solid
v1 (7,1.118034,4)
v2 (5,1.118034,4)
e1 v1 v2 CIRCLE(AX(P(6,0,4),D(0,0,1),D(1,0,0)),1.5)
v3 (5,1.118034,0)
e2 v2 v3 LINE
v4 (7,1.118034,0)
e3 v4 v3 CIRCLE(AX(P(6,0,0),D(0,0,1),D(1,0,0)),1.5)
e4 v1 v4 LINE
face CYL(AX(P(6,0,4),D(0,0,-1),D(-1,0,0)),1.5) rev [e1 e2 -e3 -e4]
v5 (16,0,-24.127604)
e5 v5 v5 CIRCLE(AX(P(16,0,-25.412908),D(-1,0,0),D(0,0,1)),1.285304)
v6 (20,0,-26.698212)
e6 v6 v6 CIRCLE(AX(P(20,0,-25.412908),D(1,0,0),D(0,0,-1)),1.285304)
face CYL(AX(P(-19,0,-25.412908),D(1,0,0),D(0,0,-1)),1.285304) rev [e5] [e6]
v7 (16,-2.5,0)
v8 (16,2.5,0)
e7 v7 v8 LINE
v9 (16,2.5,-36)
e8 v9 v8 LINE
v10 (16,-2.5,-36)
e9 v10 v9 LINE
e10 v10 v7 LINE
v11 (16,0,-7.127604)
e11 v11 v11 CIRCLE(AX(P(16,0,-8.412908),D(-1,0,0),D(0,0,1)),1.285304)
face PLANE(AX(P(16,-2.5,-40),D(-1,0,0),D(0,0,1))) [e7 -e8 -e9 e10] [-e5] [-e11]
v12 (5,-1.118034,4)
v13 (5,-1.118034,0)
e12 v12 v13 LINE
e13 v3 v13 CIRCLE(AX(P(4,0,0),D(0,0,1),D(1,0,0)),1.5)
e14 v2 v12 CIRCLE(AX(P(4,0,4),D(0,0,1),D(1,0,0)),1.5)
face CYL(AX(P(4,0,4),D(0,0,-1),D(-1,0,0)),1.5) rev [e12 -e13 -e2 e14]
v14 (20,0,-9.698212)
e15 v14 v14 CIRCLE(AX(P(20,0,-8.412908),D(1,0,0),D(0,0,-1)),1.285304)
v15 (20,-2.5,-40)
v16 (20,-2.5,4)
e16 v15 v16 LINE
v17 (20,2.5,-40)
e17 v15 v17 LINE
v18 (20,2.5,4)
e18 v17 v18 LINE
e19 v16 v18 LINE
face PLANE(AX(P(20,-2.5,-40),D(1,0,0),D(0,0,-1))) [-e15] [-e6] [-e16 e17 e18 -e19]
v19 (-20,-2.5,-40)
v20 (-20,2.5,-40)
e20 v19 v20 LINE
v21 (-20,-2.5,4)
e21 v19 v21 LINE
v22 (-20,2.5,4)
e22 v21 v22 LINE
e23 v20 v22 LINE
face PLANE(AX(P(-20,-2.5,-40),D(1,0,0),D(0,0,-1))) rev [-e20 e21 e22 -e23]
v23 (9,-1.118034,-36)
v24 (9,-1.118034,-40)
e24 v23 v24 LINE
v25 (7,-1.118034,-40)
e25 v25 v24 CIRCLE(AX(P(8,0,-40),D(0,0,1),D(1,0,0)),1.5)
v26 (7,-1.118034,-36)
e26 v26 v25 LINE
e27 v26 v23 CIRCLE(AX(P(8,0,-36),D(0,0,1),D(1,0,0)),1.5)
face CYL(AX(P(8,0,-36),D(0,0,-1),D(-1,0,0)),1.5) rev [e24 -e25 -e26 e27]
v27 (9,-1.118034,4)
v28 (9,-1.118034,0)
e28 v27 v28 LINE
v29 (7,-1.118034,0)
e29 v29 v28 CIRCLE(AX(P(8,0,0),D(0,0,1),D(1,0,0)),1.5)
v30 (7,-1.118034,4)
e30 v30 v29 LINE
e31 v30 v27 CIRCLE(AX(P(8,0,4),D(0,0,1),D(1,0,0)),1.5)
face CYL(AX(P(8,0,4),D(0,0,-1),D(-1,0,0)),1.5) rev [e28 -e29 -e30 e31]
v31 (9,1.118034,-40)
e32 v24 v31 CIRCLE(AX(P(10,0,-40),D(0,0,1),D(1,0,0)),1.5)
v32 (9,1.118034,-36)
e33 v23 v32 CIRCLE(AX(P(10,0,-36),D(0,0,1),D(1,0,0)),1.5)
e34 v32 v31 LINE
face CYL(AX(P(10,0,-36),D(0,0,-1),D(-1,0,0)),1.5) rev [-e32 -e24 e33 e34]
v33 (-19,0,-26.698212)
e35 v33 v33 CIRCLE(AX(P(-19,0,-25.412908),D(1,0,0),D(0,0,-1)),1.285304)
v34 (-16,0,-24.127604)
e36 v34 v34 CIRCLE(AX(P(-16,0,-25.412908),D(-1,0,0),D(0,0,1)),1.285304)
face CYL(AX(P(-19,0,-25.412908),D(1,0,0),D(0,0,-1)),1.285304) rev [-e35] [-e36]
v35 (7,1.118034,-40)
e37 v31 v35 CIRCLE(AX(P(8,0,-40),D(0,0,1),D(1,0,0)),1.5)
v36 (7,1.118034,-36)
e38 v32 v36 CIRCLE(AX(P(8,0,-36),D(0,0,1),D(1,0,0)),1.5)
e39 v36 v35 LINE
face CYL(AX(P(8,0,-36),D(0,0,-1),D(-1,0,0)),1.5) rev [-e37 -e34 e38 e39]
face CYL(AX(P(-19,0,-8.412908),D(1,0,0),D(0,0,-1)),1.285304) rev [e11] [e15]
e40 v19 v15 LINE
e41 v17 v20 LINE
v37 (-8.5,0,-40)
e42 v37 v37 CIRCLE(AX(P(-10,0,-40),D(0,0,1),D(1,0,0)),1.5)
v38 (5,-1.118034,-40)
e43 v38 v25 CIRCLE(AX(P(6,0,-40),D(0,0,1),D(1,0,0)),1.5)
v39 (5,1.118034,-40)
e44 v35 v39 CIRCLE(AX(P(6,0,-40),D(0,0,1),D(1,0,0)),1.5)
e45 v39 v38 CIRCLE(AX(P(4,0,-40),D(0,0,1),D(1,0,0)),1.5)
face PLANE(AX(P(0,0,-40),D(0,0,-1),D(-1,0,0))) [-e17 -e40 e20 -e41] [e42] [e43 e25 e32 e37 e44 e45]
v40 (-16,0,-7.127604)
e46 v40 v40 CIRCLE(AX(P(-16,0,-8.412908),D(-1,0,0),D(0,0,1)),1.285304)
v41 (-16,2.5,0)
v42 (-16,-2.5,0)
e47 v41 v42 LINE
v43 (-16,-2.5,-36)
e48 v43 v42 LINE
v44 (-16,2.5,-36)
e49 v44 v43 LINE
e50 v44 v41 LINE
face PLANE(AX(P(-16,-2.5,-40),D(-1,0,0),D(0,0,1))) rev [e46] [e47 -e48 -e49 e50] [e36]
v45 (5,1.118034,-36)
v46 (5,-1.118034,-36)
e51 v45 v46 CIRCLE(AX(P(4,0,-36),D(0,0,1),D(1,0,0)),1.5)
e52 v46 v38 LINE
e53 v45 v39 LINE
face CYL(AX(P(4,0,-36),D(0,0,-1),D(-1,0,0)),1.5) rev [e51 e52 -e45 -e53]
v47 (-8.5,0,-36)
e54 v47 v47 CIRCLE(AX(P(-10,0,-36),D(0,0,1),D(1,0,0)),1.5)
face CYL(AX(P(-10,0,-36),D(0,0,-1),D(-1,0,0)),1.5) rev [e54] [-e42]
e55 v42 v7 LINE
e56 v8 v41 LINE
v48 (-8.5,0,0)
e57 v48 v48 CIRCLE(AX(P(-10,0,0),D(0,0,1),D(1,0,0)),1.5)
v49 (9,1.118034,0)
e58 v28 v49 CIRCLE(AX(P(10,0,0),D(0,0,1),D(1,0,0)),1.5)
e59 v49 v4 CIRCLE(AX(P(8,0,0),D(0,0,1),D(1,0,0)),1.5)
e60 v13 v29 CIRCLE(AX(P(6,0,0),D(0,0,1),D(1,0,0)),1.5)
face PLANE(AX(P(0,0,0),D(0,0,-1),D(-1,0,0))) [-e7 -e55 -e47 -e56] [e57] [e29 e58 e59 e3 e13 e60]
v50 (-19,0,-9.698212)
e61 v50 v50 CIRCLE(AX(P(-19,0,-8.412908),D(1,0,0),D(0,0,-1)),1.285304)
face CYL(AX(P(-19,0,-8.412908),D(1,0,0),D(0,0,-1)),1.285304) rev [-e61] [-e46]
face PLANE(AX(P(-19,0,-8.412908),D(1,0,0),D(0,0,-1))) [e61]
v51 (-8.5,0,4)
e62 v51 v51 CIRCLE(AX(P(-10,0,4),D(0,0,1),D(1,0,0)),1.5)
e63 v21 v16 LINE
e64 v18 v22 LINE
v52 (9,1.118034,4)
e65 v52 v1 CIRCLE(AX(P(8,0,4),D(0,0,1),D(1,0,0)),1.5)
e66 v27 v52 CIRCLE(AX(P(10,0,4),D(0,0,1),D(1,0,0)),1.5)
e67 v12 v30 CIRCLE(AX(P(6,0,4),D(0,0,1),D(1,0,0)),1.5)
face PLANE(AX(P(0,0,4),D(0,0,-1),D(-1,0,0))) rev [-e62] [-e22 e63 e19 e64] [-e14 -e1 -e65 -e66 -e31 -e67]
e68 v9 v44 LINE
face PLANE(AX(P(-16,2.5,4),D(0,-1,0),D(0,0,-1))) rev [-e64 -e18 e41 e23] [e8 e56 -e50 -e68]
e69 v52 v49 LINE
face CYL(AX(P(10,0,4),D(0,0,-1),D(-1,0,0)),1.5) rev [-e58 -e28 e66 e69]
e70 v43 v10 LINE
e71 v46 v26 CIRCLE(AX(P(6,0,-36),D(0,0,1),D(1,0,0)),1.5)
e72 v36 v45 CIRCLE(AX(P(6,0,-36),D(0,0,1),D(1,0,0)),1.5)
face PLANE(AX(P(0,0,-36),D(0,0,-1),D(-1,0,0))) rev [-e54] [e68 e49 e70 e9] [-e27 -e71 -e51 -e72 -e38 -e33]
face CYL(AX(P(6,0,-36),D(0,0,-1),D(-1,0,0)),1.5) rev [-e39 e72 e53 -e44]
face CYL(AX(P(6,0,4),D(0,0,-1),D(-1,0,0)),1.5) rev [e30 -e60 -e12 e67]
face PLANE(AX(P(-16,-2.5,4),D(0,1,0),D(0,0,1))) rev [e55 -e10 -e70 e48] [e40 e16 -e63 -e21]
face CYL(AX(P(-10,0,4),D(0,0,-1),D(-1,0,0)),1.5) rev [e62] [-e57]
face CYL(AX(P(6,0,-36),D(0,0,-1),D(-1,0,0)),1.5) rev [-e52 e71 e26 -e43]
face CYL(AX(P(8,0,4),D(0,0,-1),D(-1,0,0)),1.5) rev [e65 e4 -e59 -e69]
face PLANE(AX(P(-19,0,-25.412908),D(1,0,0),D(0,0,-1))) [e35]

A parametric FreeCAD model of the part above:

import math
import FreeCAD as App
import Part
import Sketcher
from FreeCAD import Vector


def add_polygon(sketch, points):
    """Adds a closed chain of lines whose ends are joined by coincident constraints."""
    first, n = sketch.GeometryCount, len(points)
    for a, b in zip(points, points[1:] + points[:1]):
        sketch.addGeometry(Part.LineSegment(App.Vector(*a, 0), App.Vector(*b, 0)), False)
    for i in range(n):
        sketch.addConstraint(Sketcher.Constraint("Coincident", first + i, 2, first + (i + 1) % n, 1))

doc = App.newDocument("Part")
body = doc.addObject("PartDesign::Body", "Body")

# Sketch on XY plane
sketch1 = body.newObject("Sketcher::SketchObject", "Sketch")
sketch1.AttachmentSupport = (doc.getObject("XY_Plane"), [""])
sketch1.MapMode = "FlatFace"
add_polygon(sketch1, [(-16, 2.5), (-16, -2.5), (16, -2.5), (16, 2.5)])  # lines 0-3
sketch1.addGeometry(Part.Circle(Vector(-10, 0, 0), Vector(0, 0, 1), 1.5), False)  # 4
sketch1.addGeometry(Part.ArcOfCircle(Part.Circle(Vector(4, 0, 0), Vector(0, 0, 1), 1.5), math.radians(48), math.radians(312)), False)  # 5
sketch1.addGeometry(Part.ArcOfCircle(Part.Circle(Vector(6, 0, 0), Vector(0, 0, 1), 1.5), math.radians(48), math.radians(132)), False)  # 6
sketch1.addGeometry(Part.ArcOfCircle(Part.Circle(Vector(8, 0, 0), Vector(0, 0, 1), 1.5), math.radians(48), math.radians(132)), False)  # 7
sketch1.addGeometry(Part.ArcOfCircle(Part.Circle(Vector(10, 0, 0), Vector(0, 0, 1), 1.5), math.radians(-132), math.radians(132)), False)  # 8
sketch1.addGeometry(Part.ArcOfCircle(Part.Circle(Vector(8, 0, 0), Vector(0, 0, 1), 1.5), math.radians(-132), math.radians(-48)), False)  # 9
sketch1.addGeometry(Part.ArcOfCircle(Part.Circle(Vector(6, 0, 0), Vector(0, 0, 1), 1.5), math.radians(-132), math.radians(-48)), False)  # 10
sketch1.addConstraint([
    Sketcher.Constraint("Coincident", 5, 1, 6, 2),
    Sketcher.Constraint("Coincident", 6, 1, 7, 2),
    Sketcher.Constraint("Coincident", 7, 1, 8, 2),
    Sketcher.Constraint("Coincident", 8, 1, 9, 2),
    Sketcher.Constraint("Coincident", 9, 1, 10, 2),
    Sketcher.Constraint("Coincident", 10, 1, 5, 2),
    Sketcher.Constraint("Vertical", 0),
    Sketcher.Constraint("Horizontal", 1),
    Sketcher.Constraint("Vertical", 2),
    Sketcher.Constraint("Horizontal", 3),
    Sketcher.Constraint("Coincident", 9, 3, 7, 3),
    Sketcher.Constraint("Coincident", 10, 3, 6, 3),
    Sketcher.Constraint("Equal", 4, 5),
    Sketcher.Constraint("Equal", 5, 6),
    Sketcher.Constraint("Equal", 6, 7),
    Sketcher.Constraint("Equal", 7, 8),
    Sketcher.Constraint("Equal", 8, 9),
    Sketcher.Constraint("Equal", 9, 10),
    Sketcher.Constraint("Symmetric", 4, 3, 8, 3, -1, 1),
    Sketcher.Constraint("Symmetric", 0, 2, 2, 2, -1, 1),
    Sketcher.Constraint("Symmetric", 7, 1, 8, 1, -1),
    Sketcher.Constraint("Symmetric", 5, 1, 10, 1, -1),
    Sketcher.Constraint("Horizontal", 5, 1, 6, 1),
    Sketcher.Constraint("Horizontal", 6, 1, 7, 1),
    Sketcher.Constraint("Diameter", 4, 3.0),
    Sketcher.Constraint("DistanceX", 1, 1, 1, 2, 32.0),
    Sketcher.Constraint("DistanceY", 0, 2, 0, 1, 5.0),
    Sketcher.Constraint("DistanceX", 4, 3, -1, 1, 10.0),
    Sketcher.Constraint("DistanceX", -1, 1, 5, 3, 4.0),
])
pad1 = body.newObject("PartDesign::Pad", "Pad")
pad1.Profile = sketch1
pad1.Length = 4

# Sketch on XY plane
sketch2 = body.newObject("Sketcher::SketchObject", "Sketch001")
sketch2.AttachmentSupport = (doc.getObject("XY_Plane"), [""])
sketch2.MapMode = "FlatFace"
sketch2.AttachmentOffset = App.Placement(Vector(0, 0, 4), App.Rotation())
add_polygon(sketch2, [(16, 2.5), (16, -2.5), (20, -2.5), (20, 2.5)])  # lines 0-3
sketch2.addConstraint([
    Sketcher.Constraint("Vertical", 0),
    Sketcher.Constraint("Horizontal", 1),
    Sketcher.Constraint("Vertical", 2),
    Sketcher.Constraint("Horizontal", 3),
    Sketcher.Constraint("DistanceX", 1, 1, 1, 2, 4.0),
    Sketcher.Constraint("DistanceY", 0, 2, 0, 1, 5.0),
    Sketcher.Constraint("DistanceX", -1, 1, 0, 2, 16.0),
    Sketcher.Constraint("DistanceY", 0, 2, -1, 1, 2.5),
])
pad2 = body.newObject("PartDesign::Pad", "Pad001")
pad2.Profile = sketch2
pad2.Length = 44
pad2.Reversed = True
doc.recompute()

linearpattern = body.newObject("PartDesign::LinearPattern", "LinearPattern")
linearpattern.Originals = [pad1]
linearpattern.Direction = (doc.getObject("Z_Axis"), [""])
linearpattern.Mode = "offset"
linearpattern.Offset = 40
linearpattern.Occurrences = 2
linearpattern.Reversed = True
body.Tip = linearpattern
doc.recompute()

mirrored = body.newObject("PartDesign::Mirrored", "Mirrored")
mirrored.Originals = [pad2]
mirrored.MirrorPlane = (doc.getObject("YZ_Plane"), [""])
body.Tip = mirrored

# Sketch on YZ plane
sketch3 = body.newObject("Sketcher::SketchObject", "Sketch002")
sketch3.AttachmentSupport = (doc.getObject("YZ_Plane"), [""])
sketch3.MapMode = "FlatFace"
sketch3.AttachmentOffset = App.Placement(Vector(0, 0, 20), App.Rotation())
sketch3.addGeometry([
    Part.Circle(Vector(0, -8.4, 0), Vector(0, 0, 1), 1.3),
    Part.Circle(Vector(0, -25.4, 0), Vector(0, 0, 1), 1.3),
], False)
sketch3.addConstraint([
    Sketcher.Constraint("Equal", 0, 1),
    Sketcher.Constraint("PointOnObject", 0, 3, -2),
    Sketcher.Constraint("PointOnObject", 1, 3, -2),
    Sketcher.Constraint("DistanceY", 1, 3, 0, 3, 17.0),
    Sketcher.Constraint("Diameter", 0, 2.570608),
    Sketcher.Constraint("DistanceY", 0, 3, -1, 1, 8.412908),
])
pocket1 = body.newObject("PartDesign::Pocket", "Pocket")
pocket1.Profile = sketch3
pocket1.Length = 39

doc.recompute()
